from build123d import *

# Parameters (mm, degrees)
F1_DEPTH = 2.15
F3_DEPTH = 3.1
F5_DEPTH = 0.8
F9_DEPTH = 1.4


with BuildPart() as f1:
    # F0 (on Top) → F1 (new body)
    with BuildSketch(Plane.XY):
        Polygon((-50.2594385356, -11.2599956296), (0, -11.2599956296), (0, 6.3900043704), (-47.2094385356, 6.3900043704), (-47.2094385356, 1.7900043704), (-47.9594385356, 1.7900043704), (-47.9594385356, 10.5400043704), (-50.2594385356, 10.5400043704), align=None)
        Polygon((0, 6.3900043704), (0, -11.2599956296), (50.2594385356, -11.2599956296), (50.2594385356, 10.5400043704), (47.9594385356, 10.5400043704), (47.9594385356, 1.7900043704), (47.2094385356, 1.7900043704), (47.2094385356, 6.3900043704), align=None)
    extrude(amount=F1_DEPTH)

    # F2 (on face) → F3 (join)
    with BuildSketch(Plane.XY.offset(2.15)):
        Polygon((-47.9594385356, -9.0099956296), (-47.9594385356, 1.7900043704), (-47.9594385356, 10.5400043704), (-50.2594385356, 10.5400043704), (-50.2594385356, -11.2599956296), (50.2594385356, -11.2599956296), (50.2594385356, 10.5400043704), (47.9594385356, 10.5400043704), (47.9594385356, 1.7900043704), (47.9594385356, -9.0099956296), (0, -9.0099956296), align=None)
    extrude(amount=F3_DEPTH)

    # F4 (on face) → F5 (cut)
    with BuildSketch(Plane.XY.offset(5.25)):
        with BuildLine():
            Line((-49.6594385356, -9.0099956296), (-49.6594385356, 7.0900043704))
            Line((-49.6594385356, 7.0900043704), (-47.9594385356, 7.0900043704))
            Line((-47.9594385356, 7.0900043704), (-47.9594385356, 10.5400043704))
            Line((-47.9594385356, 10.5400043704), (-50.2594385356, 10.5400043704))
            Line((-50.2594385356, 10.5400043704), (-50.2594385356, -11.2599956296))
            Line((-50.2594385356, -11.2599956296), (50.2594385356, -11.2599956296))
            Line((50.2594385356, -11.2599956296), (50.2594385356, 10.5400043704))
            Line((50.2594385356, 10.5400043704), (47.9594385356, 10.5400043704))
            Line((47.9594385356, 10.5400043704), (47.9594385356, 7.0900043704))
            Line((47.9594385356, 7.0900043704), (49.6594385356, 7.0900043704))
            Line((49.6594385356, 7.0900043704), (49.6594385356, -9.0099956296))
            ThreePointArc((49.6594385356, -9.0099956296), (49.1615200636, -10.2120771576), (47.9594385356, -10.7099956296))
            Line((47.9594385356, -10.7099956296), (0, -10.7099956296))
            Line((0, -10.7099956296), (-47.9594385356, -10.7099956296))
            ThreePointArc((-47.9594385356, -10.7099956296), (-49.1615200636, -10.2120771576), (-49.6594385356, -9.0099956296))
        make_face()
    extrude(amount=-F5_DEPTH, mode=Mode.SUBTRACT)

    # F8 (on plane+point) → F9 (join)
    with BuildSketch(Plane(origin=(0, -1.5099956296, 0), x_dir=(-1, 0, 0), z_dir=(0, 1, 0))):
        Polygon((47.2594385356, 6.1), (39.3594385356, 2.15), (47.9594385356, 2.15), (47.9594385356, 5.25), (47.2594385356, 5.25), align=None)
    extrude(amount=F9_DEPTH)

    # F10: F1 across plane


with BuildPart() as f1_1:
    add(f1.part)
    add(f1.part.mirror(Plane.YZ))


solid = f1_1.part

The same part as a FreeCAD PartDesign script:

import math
import FreeCAD as App
import Part
import Sketcher

V = App.Vector
Q = App.Units.Quantity


def add_polygon(sketch, points):
    """Adds a closed chain of lines whose ends are joined by coincident constraints."""
    first, n = sketch.GeometryCount, len(points)
    for a, b in zip(points, points[1:] + points[:1]):
        sketch.addGeometry(Part.LineSegment(App.Vector(*a, 0), App.Vector(*b, 0)), False)
    for i in range(n):
        sketch.addConstraint(Sketcher.Constraint("Coincident", first + i, 2, first + (i + 1) % n, 1))

doc = App.newDocument("Part")
body = doc.addObject("PartDesign::Body", "Body")

sketch1 = doc.addObject("Sketcher::SketchObject", "Sketch")
body.addObject(sketch1)
sketch1.AttachmentSupport = (doc.XY_Plane, [""])
sketch1.MapMode = "FlatFace"
add_polygon(sketch1, [(-50.3, -11.3), (50.3, -11.3), (50.3, 10.5), (48, 10.5), (48, 1.8), (47.2, 1.8), (47.2, 6.4), (-47.2, 6.4), (-47.2, 1.8), (-48, 1.8), (-48, 10.5), (-50.3, 10.5)])
sketch1.addConstraint(Sketcher.Constraint("Horizontal", 0))
sketch1.addConstraint(Sketcher.Constraint("Vertical", 1))
sketch1.addConstraint(Sketcher.Constraint("Horizontal", 2))
sketch1.addConstraint(Sketcher.Constraint("Vertical", 3))
sketch1.addConstraint(Sketcher.Constraint("Horizontal", 4))
sketch1.addConstraint(Sketcher.Constraint("Vertical", 5))
sketch1.addConstraint(Sketcher.Constraint("Horizontal", 6))
sketch1.addConstraint(Sketcher.Constraint("Vertical", 7))
sketch1.addConstraint(Sketcher.Constraint("Horizontal", 8))
sketch1.addConstraint(Sketcher.Constraint("Vertical", 9))
sketch1.addConstraint(Sketcher.Constraint("Horizontal", 10))
sketch1.addConstraint(Sketcher.Constraint("Vertical", 11))
sketch1.addConstraint(Sketcher.Constraint("Symmetric", 4, 2, 7, 2, -2))
sketch1.addConstraint(Sketcher.Constraint("Symmetric", 2, 2, 9, 2, -2))
sketch1.addConstraint(Sketcher.Constraint("Equal", 2, 10))
sketch1.addConstraint(Sketcher.Constraint("DistanceX", 2, 2, 2, 1, Q("2.3 mm")))
sketch1.addConstraint(Sketcher.Constraint("DistanceY", 1, 1, 1, 2, Q("21.8 mm")))
sketch1.addConstraint(Sketcher.Constraint("DistanceY", 5, 1, 5, 2, Q("4.6 mm")))
sketch1.addConstraint(Sketcher.Constraint("DistanceX", 4, 2, 4, 1, Q("0.75 mm")))
sketch1.addConstraint(Sketcher.Constraint("DistanceY", 3, 2, 3, 1, Q("8.75 mm")))
sketch1.addConstraint(Sketcher.Constraint("DistanceX", 0, 1, 0, 2, Q("100.518877 mm")))
sketch1.addConstraint(Sketcher.Constraint("DistanceY", 0, 2, -1, 1, Q("11.259996 mm")))
pad1 = doc.addObject("PartDesign::Pad", "Pad")
body.addObject(pad1)
pad1.Profile = sketch1
pad1.Length = 2.15

sketch2 = doc.addObject("Sketcher::SketchObject", "Sketch001")
body.addObject(sketch2)
sketch2.AttachmentSupport = (doc.XY_Plane, [""])
sketch2.MapMode = "FlatFace"
sketch2.AttachmentOffset = App.Placement(V(0, 0, 2.15), App.Rotation())
add_polygon(sketch2, [(-48, -9), (-48, 10.5), (-50.3, 10.5), (-50.3, -11.3), (50.3, -11.3), (50.3, 10.5), (48, 10.5), (48, -9)])
sketch2.addConstraint(Sketcher.Constraint("Vertical", 0))
sketch2.addConstraint(Sketcher.Constraint("Horizontal", 1))
sketch2.addConstraint(Sketcher.Constraint("Vertical", 2))
sketch2.addConstraint(Sketcher.Constraint("Horizontal", 3))
sketch2.addConstraint(Sketcher.Constraint("Vertical", 4))
sketch2.addConstraint(Sketcher.Constraint("Horizontal", 5))
sketch2.addConstraint(Sketcher.Constraint("Vertical", 6))
sketch2.addConstraint(Sketcher.Constraint("Horizontal", 7))
sketch2.addConstraint(Sketcher.Constraint("Symmetric", 1, 2, 4, 2, -2))
sketch2.addConstraint(Sketcher.Constraint("Equal", 1, 5))
sketch2.addConstraint(Sketcher.Constraint("DistanceX", 1, 2, 1, 1, Q("2.3 mm")))
sketch2.addConstraint(Sketcher.Constraint("DistanceY", 2, 2, 2, 1, Q("21.8 mm")))
sketch2.addConstraint(Sketcher.Constraint("DistanceY", 0, 1, 0, 2, Q("19.55 mm")))
sketch2.addConstraint(Sketcher.Constraint("DistanceX", 3, 1, 3, 2, Q("100.518877 mm")))
sketch2.addConstraint(Sketcher.Constraint("DistanceY", -1, 1, 0, 2, Q("10.540004 mm")))
pad2 = doc.addObject("PartDesign::Pad", "Pad001")
body.addObject(pad2)
pad2.Profile = sketch2
pad2.Length = 3.1

sketch3 = doc.addObject("Sketcher::SketchObject", "Sketch002")
body.addObject(sketch3)
sketch3.AttachmentSupport = (doc.XY_Plane, [""])
sketch3.MapMode = "FlatFace"
sketch3.AttachmentOffset = App.Placement(V(0, 0, 5.25), App.Rotation())
sketch3.addGeometry(Part.LineSegment(V(-49.7, -9, 0), V(-49.7, 7.1, 0)), False)
sketch3.addGeometry(Part.LineSegment(V(-49.7, 7.1, 0), V(-48, 7.1, 0)), False)
sketch3.addGeometry(Part.LineSegment(V(-48, 7.1, 0), V(-48, 10.5, 0)), False)
sketch3.addGeometry(Part.LineSegment(V(-48, 10.5, 0), V(-50.3, 10.5, 0)), False)
sketch3.addGeometry(Part.LineSegment(V(-50.3, 10.5, 0), V(-50.3, -11.3, 0)), False)
sketch3.addGeometry(Part.LineSegment(V(-50.3, -11.3, 0), V(50.3, -11.3, 0)), False)
sketch3.addGeometry(Part.LineSegment(V(50.3, -11.3, 0), V(50.3, 10.5, 0)), False)
sketch3.addGeometry(Part.LineSegment(V(50.3, 10.5, 0), V(48, 10.5, 0)), False)
sketch3.addGeometry(Part.LineSegment(V(48, 10.5, 0), V(48, 7.1, 0)), False)
sketch3.addGeometry(Part.LineSegment(V(48, 7.1, 0), V(49.7, 7.1, 0)), False)
sketch3.addGeometry(Part.LineSegment(V(49.7, 7.1, 0), V(49.7, -9, 0)), False)
sketch3.addGeometry(Part.ArcOfCircle(Part.Circle(V(48, -9, 0), V(0, 0, 1), 1.7), math.radians(-90), math.radians(0)), False)
sketch3.addGeometry(Part.LineSegment(V(48, -10.7, 0), V(-48, -10.7, 0)), False)
sketch3.addGeometry(Part.ArcOfCircle(Part.Circle(V(-48, -9, 0), V(0, 0, 1), 1.7), math.radians(180), math.radians(270)), False)
sketch3.addConstraint(Sketcher.Constraint("Coincident", 0, 2, 1, 1))
sketch3.addConstraint(Sketcher.Constraint("Coincident", 1, 2, 2, 1))
sketch3.addConstraint(Sketcher.Constraint("Coincident", 2, 2, 3, 1))
sketch3.addConstraint(Sketcher.Constraint("Coincident", 3, 2, 4, 1))
sketch3.addConstraint(Sketcher.Constraint("Coincident", 4, 2, 5, 1))
sketch3.addConstraint(Sketcher.Constraint("Coincident", 5, 2, 6, 1))
sketch3.addConstraint(Sketcher.Constraint("Coincident", 6, 2, 7, 1))
sketch3.addConstraint(Sketcher.Constraint("Coincident", 7, 2, 8, 1))
sketch3.addConstraint(Sketcher.Constraint("Coincident", 8, 2, 9, 1))
sketch3.addConstraint(Sketcher.Constraint("Coincident", 9, 2, 10, 1))
sketch3.addConstraint(Sketcher.Constraint("Tangent", 10, 2, 11, 2))
sketch3.addConstraint(Sketcher.Constraint("Tangent", 11, 1, 12, 1))
sketch3.addConstraint(Sketcher.Constraint("Tangent", 12, 2, 13, 2))
sketch3.addConstraint(Sketcher.Constraint("Tangent", 13, 1, 0, 1))
sketch3.addConstraint(Sketcher.Constraint("Vertical", 0))
sketch3.addConstraint(Sketcher.Constraint("Horizontal", 1))
sketch3.addConstraint(Sketcher.Constraint("Vertical", 2))
sketch3.addConstraint(Sketcher.Constraint("Horizontal", 3))
sketch3.addConstraint(Sketcher.Constraint("Vertical", 4))
sketch3.addConstraint(Sketcher.Constraint("Horizontal", 5))
sketch3.addConstraint(Sketcher.Constraint("Vertical", 6))
sketch3.addConstraint(Sketcher.Constraint("Horizontal", 7))
sketch3.addConstraint(Sketcher.Constraint("Vertical", 8))
sketch3.addConstraint(Sketcher.Constraint("Horizontal", 9))
sketch3.addConstraint(Sketcher.Constraint("Vertical", 10))
sketch3.addConstraint(Sketcher.Constraint("Horizontal", 12))
sketch3.addConstraint(Sketcher.Constraint("Equal", 11, 13))
sketch3.addConstraint(Sketcher.Constraint("Symmetric", 3, 2, 6, 2, -2))
sketch3.addConstraint(Sketcher.Constraint("Symmetric", 1, 2, 8, 2, -2))
sketch3.addConstraint(Sketcher.Constraint("Vertical", 13, 3, 1, 2))
sketch3.addConstraint(Sketcher.Constraint("Vertical", 11, 3, 7, 2))
sketch3.addConstraint(Sketcher.Constraint("Radius", 11, Q("1.7 mm")))
sketch3.addConstraint(Sketcher.Constraint("DistanceX", 3, 2, 3, 1, Q("2.3 mm")))
sketch3.addConstraint(Sketcher.Constraint("DistanceY", 0, 1, 0, 2, Q("16.1 mm")))
sketch3.addConstraint(Sketcher.Constraint("DistanceY", 4, 2, 4, 1, Q("21.8 mm")))
sketch3.addConstraint(Sketcher.Constraint("DistanceY", 2, 1, 2, 2, Q("3.45 mm")))
sketch3.addConstraint(Sketcher.Constraint("DistanceX", 5, 1, 5, 2, Q("100.518877 mm")))
sketch3.addConstraint(Sketcher.Constraint("DistanceY", 11, 3, -1, 1, Q("9.009996 mm")))
pocket1 = doc.addObject("PartDesign::Pocket", "Pocket")
body.addObject(pocket1)
pocket1.Profile = sketch3
pocket1.Length = 0.8

sketch4 = doc.addObject("Sketcher::SketchObject", "Sketch003")
body.addObject(sketch4)
sketch4.AttachmentSupport = (doc.XZ_Plane, [""])
sketch4.MapMode = "FlatFace"
sketch4.AttachmentOffset = App.Placement(V(0, 0, 1.509996), App.Rotation())
add_polygon(sketch4, [(-47.3, 6.1), (-39.4, 2.1), (-48, 2.1), (-48, 5.2), (-47.3, 5.2)])
sketch4.addConstraint(Sketcher.Constraint("Horizontal", 1))
sketch4.addConstraint(Sketcher.Constraint("Vertical", 2))
sketch4.addConstraint(Sketcher.Constraint("Horizontal", 3))
sketch4.addConstraint(Sketcher.Constraint("Vertical", 4))
sketch4.addConstraint(Sketcher.Constraint("DistanceX", 1, 2, 1, 1, Q("8.6 mm")))
sketch4.addConstraint(Sketcher.Constraint("DistanceX", 3, 1, 3, 2, Q("0.7 mm")))
sketch4.addConstraint(Sketcher.Constraint("DistanceY", 2, 1, 2, 2, Q("3.1 mm")))
sketch4.addConstraint(Sketcher.Constraint("DistanceY", 4, 1, 4, 2, Q("0.85 mm")))
sketch4.addConstraint(Sketcher.Constraint("DistanceY", -1, 1, 4, 2, Q("6.1 mm")))
sketch4.addConstraint(Sketcher.Constraint("DistanceX", 0, 2, -1, 1, Q("39.359439 mm")))
pad3 = doc.addObject("PartDesign::Pad", "Pad002")
body.addObject(pad3)
pad3.Profile = sketch4
pad3.Length = 1.4
pad3.Reversed = True
body2 = doc.addObject("PartDesign::Body", "Body001")
doc.recompute()

body2.BaseFeature = body
doc.recompute()

mirroring = doc.addObject("Part::Mirroring", "Mirroring")
mirroring.Source = body
mirroring.Base = V(0, 0, 0)
mirroring.Normal = V(1, 0, 0)
body3 = doc.addObject("PartDesign::Body", "Body002")
body3.BaseFeature = mirroring
boolean = doc.addObject("PartDesign::Boolean", "Boolean")
body2.addObject(boolean)
boolean.Type = "Fuse"
boolean.addObjects([body3])
doc.recompute()
mirroring.Visibility = False

doc.recompute()
